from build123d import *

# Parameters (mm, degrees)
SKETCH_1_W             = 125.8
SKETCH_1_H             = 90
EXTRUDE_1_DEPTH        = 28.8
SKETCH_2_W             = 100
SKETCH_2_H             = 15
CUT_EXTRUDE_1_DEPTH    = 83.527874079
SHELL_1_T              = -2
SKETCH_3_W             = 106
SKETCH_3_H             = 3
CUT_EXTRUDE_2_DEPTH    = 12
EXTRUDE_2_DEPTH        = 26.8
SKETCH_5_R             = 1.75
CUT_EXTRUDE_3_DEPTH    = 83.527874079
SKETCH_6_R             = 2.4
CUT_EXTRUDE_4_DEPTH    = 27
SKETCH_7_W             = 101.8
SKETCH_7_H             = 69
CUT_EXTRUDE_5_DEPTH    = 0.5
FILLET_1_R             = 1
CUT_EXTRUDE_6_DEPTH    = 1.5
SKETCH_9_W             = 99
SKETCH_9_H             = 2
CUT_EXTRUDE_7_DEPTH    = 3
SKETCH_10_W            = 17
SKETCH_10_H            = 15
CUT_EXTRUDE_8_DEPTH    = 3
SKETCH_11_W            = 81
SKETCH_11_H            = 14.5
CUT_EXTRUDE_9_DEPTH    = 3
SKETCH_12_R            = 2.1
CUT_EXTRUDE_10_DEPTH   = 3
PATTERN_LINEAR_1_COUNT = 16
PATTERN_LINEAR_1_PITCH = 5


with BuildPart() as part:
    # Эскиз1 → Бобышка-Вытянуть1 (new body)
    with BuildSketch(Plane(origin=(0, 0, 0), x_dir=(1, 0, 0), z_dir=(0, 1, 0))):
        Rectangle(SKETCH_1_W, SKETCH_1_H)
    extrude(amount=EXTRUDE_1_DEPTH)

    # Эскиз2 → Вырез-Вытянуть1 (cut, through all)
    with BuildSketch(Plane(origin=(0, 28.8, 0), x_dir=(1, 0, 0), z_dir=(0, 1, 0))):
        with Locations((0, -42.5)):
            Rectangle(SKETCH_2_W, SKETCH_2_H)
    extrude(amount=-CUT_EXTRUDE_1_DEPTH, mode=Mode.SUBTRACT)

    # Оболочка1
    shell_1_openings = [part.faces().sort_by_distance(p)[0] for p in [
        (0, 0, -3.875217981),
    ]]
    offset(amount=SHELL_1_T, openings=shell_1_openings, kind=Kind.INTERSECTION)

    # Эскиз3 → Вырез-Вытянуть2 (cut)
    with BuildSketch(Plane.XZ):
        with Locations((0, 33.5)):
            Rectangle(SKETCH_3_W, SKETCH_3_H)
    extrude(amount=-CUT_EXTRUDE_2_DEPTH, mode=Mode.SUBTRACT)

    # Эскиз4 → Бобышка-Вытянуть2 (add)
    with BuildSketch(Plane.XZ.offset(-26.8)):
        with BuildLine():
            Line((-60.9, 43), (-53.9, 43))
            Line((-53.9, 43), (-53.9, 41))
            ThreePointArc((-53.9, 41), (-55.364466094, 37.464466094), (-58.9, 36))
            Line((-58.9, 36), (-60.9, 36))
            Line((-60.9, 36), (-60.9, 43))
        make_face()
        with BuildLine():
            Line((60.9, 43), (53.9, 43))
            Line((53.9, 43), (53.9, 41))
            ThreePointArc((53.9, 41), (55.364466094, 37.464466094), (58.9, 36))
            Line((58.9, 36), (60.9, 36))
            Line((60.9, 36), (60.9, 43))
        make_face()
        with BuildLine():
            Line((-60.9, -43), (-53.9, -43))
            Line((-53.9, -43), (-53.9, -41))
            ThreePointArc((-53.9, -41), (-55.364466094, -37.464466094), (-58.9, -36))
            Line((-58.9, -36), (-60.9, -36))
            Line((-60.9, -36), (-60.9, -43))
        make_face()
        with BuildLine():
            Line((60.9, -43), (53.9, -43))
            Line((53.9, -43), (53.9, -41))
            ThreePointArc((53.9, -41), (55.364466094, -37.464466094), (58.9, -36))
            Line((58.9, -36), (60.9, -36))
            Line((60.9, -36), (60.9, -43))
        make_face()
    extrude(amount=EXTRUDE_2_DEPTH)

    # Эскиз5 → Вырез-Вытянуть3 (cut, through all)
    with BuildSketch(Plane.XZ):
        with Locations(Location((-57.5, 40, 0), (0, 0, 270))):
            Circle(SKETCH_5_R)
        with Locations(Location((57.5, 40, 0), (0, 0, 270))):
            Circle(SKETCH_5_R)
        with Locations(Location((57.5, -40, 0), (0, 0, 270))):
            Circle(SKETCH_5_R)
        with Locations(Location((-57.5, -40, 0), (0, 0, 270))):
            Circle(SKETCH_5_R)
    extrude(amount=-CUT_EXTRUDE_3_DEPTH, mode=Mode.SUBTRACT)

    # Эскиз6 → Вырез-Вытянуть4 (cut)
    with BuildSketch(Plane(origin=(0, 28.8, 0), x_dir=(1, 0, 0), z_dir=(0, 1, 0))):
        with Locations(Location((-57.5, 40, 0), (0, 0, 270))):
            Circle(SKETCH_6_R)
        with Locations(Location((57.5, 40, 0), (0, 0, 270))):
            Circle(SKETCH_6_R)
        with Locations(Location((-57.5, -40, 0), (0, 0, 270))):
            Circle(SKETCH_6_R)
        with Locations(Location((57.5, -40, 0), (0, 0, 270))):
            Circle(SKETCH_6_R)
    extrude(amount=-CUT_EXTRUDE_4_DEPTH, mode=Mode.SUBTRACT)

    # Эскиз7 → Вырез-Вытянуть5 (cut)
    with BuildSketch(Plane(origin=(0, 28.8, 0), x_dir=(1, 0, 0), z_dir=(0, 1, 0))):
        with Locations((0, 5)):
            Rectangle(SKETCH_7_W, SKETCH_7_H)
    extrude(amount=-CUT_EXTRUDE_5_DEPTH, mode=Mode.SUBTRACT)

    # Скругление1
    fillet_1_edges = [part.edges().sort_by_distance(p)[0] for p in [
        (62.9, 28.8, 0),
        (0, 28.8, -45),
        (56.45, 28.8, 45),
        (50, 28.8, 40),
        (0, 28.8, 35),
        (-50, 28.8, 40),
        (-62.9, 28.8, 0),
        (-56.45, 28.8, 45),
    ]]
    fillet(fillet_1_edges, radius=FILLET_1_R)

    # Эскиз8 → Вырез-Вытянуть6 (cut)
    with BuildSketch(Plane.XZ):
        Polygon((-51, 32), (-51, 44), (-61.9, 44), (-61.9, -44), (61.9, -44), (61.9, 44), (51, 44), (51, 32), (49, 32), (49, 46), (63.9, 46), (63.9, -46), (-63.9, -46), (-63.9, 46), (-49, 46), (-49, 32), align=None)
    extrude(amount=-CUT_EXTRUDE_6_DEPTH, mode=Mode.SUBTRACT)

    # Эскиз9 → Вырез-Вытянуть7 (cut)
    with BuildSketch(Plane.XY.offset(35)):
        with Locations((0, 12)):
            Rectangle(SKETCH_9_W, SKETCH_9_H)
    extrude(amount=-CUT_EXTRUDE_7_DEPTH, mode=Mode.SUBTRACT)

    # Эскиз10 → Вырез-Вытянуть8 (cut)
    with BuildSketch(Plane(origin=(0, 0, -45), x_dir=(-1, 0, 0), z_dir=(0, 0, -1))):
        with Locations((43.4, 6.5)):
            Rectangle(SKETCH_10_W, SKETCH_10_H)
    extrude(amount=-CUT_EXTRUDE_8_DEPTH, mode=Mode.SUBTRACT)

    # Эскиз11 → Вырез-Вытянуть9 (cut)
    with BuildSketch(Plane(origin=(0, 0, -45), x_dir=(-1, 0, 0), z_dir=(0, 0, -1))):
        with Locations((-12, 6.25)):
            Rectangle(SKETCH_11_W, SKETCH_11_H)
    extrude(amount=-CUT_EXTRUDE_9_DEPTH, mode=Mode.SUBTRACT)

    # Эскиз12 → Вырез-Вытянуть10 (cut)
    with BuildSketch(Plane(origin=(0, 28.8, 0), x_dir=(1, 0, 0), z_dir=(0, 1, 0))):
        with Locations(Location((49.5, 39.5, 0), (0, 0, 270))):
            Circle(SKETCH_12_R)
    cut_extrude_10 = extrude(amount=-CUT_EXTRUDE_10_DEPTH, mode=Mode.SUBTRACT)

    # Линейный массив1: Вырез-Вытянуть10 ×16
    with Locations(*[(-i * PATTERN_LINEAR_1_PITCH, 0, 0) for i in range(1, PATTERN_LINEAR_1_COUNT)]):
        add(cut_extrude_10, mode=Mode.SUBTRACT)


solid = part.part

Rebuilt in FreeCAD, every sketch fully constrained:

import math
import FreeCAD as App
import Part
import Sketcher

V = App.Vector


def edges_at(feature, points):
    """Names of the edges that pass closest to the given points."""
    edges = feature.Shape.Edges
    near = lambda p: min(range(len(edges)), key=lambda i: edges[i].distToShape(Part.Vertex(*p))[0])
    return sorted({f"Edge{near(p) + 1}" for p in points})


def faces_at(feature, points):
    """Names of the faces that lie closest to the given points."""
    faces = feature.Shape.Faces
    near = lambda p: min(range(len(faces)), key=lambda i: faces[i].distToShape(Part.Vertex(*p))[0])
    return sorted({f"Face{near(p) + 1}" for p in points})


def add_polygon(sketch, points):
    """Adds a closed chain of lines whose ends are joined by coincident constraints."""
    first, n = sketch.GeometryCount, len(points)
    for a, b in zip(points, points[1:] + points[:1]):
        sketch.addGeometry(Part.LineSegment(App.Vector(*a, 0), App.Vector(*b, 0)), False)
    for i in range(n):
        sketch.addConstraint(Sketcher.Constraint("Coincident", first + i, 2, first + (i + 1) % n, 1))

doc = App.newDocument("Part")
body = doc.addObject("PartDesign::Body", "Body")

sketch1 = body.newObject("Sketcher::SketchObject", "Sketch")
sketch1.AttachmentSupport = (doc.getObject("XZ_Plane"), [""])
sketch1.MapMode = "FlatFace"
add_polygon(sketch1, [(-62.9, -45), (-62.9, 45), (62.9, 45), (62.9, -45)])
sketch1.addConstraint(Sketcher.Constraint("Vertical", 0))
sketch1.addConstraint(Sketcher.Constraint("Horizontal", 1))
sketch1.addConstraint(Sketcher.Constraint("Vertical", 2))
sketch1.addConstraint(Sketcher.Constraint("Horizontal", 3))
sketch1.addConstraint(Sketcher.Constraint("Symmetric", 0, 2, 2, 2, -1, 1))
sketch1.addConstraint(Sketcher.Constraint("DistanceY", 0, 1, 0, 2, 90.0))
sketch1.addConstraint(Sketcher.Constraint("DistanceX", 1, 1, 1, 2, 125.8))
pad1 = body.newObject("PartDesign::Pad", "Pad")
pad1.Profile = sketch1
pad1.Length = 28.8
pad1.Reversed = True

sketch2 = body.newObject("Sketcher::SketchObject", "Sketch001")
sketch2.AttachmentSupport = (doc.getObject("XZ_Plane"), [""])
sketch2.MapMode = "FlatFace"
sketch2.AttachmentOffset = App.Placement(V(0, 0, -28.8), App.Rotation())
add_polygon(sketch2, [(-50, 35), (-50, 50), (50, 50), (50, 35)])
sketch2.addConstraint(Sketcher.Constraint("Vertical", 0))
sketch2.addConstraint(Sketcher.Constraint("Horizontal", 1))
sketch2.addConstraint(Sketcher.Constraint("Vertical", 2))
sketch2.addConstraint(Sketcher.Constraint("Horizontal", 3))
sketch2.addConstraint(Sketcher.Constraint("DistanceX", 1, 1, 1, 2, 100.0))
sketch2.addConstraint(Sketcher.Constraint("DistanceY", 0, 1, 0, 2, 15.0))
sketch2.addConstraint(Sketcher.Constraint("DistanceX", 0, 2, -1, 1, 50.0))
sketch2.addConstraint(Sketcher.Constraint("DistanceY", -1, 1, 0, 2, 50.0))
pocket1 = body.newObject("PartDesign::Pocket", "Pocket")
pocket1.Profile = sketch2
pocket1.Type = "ThroughAll"
pocket1.Reversed = True
doc.recompute()

thickness = body.newObject("PartDesign::Thickness", "Thickness")
thickness.Base = (pocket1, faces_at(pocket1, [(0, 0, 0)]))
thickness.Value = 2
thickness.Reversed = True
thickness.Join = "Intersection"

sketch3 = body.newObject("Sketcher::SketchObject", "Sketch002")
sketch3.AttachmentSupport = (doc.getObject("XZ_Plane"), [""])
sketch3.MapMode = "FlatFace"
add_polygon(sketch3, [(-53, 35), (-53, 32), (53, 32), (53, 35)])
sketch3.addConstraint(Sketcher.Constraint("Vertical", 0))
sketch3.addConstraint(Sketcher.Constraint("Horizontal", 1))
sketch3.addConstraint(Sketcher.Constraint("Vertical", 2))
sketch3.addConstraint(Sketcher.Constraint("Horizontal", 3))
sketch3.addConstraint(Sketcher.Constraint("DistanceX", 1, 1, 1, 2, 106.0))
sketch3.addConstraint(Sketcher.Constraint("DistanceY", 0, 2, 0, 1, 3.0))
sketch3.addConstraint(Sketcher.Constraint("DistanceX", 0, 2, -1, 1, 53.0))
sketch3.addConstraint(Sketcher.Constraint("DistanceY", -1, 1, 0, 2, 32.0))
pocket2 = body.newObject("PartDesign::Pocket", "Pocket001")
pocket2.Profile = sketch3
pocket2.Length = 12

sketch4 = body.newObject("Sketcher::SketchObject", "Sketch003")
sketch4.AttachmentSupport = (doc.getObject("XZ_Plane"), [""])
sketch4.MapMode = "FlatFace"
sketch4.AttachmentOffset = App.Placement(V(0, 0, -26.8), App.Rotation())
sketch4.addGeometry(Part.LineSegment(V(-53.9, 43, 0), V(-60.9, 43, 0)), False)
sketch4.addGeometry(Part.LineSegment(V(-60.9, 43, 0), V(-60.9, 36, 0)), False)
sketch4.addGeometry(Part.LineSegment(V(-60.9, 36, 0), V(-58.9, 36, 0)), False)
sketch4.addGeometry(Part.ArcOfCircle(Part.Circle(V(-58.9, 41, 0), V(0, 0, 1), 5), math.radians(-90), math.radians(0)), False)
sketch4.addGeometry(Part.LineSegment(V(-53.9, 41, 0), V(-53.9, 43, 0)), False)
sketch4.addGeometry(Part.LineSegment(V(60.9, 43, 0), V(53.9, 43, 0)), False)
sketch4.addGeometry(Part.LineSegment(V(53.9, 43, 0), V(53.9, 41, 0)), False)
sketch4.addGeometry(Part.ArcOfCircle(Part.Circle(V(58.9, 41, 0), V(0, 0, 1), 5), math.radians(180), math.radians(270)), False)
sketch4.addGeometry(Part.LineSegment(V(58.9, 36, 0), V(60.9, 36, 0)), False)
sketch4.addGeometry(Part.LineSegment(V(60.9, 36, 0), V(60.9, 43, 0)), False)
sketch4.addGeometry(Part.LineSegment(V(-60.9, -43, 0), V(-53.9, -43, 0)), False)
sketch4.addGeometry(Part.LineSegment(V(-53.9, -43, 0), V(-53.9, -41, 0)), False)
sketch4.addGeometry(Part.ArcOfCircle(Part.Circle(V(-58.9, -41, 0), V(0, 0, 1), 5), math.radians(0), math.radians(90)), False)
sketch4.addGeometry(Part.LineSegment(V(-58.9, -36, 0), V(-60.9, -36, 0)), False)
sketch4.addGeometry(Part.LineSegment(V(-60.9, -36, 0), V(-60.9, -43, 0)), False)
sketch4.addGeometry(Part.LineSegment(V(53.9, -43, 0), V(60.9, -43, 0)), False)
sketch4.addGeometry(Part.LineSegment(V(60.9, -43, 0), V(60.9, -36, 0)), False)
sketch4.addGeometry(Part.LineSegment(V(60.9, -36, 0), V(58.9, -36, 0)), False)
sketch4.addGeometry(Part.ArcOfCircle(Part.Circle(V(58.9, -41, 0), V(0, 0, 1), 5), math.radians(90), math.radians(180)), False)
sketch4.addGeometry(Part.LineSegment(V(53.9, -41, 0), V(53.9, -43, 0)), False)
sketch4.addConstraint(Sketcher.Constraint("Coincident", 0, 2, 1, 1))
sketch4.addConstraint(Sketcher.Constraint("Coincident", 1, 2, 2, 1))
sketch4.addConstraint(Sketcher.Constraint("Tangent", 2, 2, 3, 1))
sketch4.addConstraint(Sketcher.Constraint("Tangent", 3, 2, 4, 1))
sketch4.addConstraint(Sketcher.Constraint("Coincident", 4, 2, 0, 1))
sketch4.addConstraint(Sketcher.Constraint("Coincident", 5, 2, 6, 1))
sketch4.addConstraint(Sketcher.Constraint("Tangent", 6, 2, 7, 1))
sketch4.addConstraint(Sketcher.Constraint("Tangent", 7, 2, 8, 1))
sketch4.addConstraint(Sketcher.Constraint("Coincident", 8, 2, 9, 1))
sketch4.addConstraint(Sketcher.Constraint("Coincident", 9, 2, 5, 1))
sketch4.addConstraint(Sketcher.Constraint("Coincident", 10, 2, 11, 1))
sketch4.addConstraint(Sketcher.Constraint("Tangent", 11, 2, 12, 1))
sketch4.addConstraint(Sketcher.Constraint("Tangent", 12, 2, 13, 1))
sketch4.addConstraint(Sketcher.Constraint("Coincident", 13, 2, 14, 1))
sketch4.addConstraint(Sketcher.Constraint("Coincident", 14, 2, 10, 1))
sketch4.addConstraint(Sketcher.Constraint("Coincident", 15, 2, 16, 1))
sketch4.addConstraint(Sketcher.Constraint("Coincident", 16, 2, 17, 1))
sketch4.addConstraint(Sketcher.Constraint("Tangent", 17, 2, 18, 1))
sketch4.addConstraint(Sketcher.Constraint("Tangent", 18, 2, 19, 1))
sketch4.addConstraint(Sketcher.Constraint("Coincident", 19, 2, 15, 1))
sketch4.addConstraint(Sketcher.Constraint("Horizontal", 0))
sketch4.addConstraint(Sketcher.Constraint("Vertical", 1))
sketch4.addConstraint(Sketcher.Constraint("Horizontal", 2))
sketch4.addConstraint(Sketcher.Constraint("Vertical", 4))
sketch4.addConstraint(Sketcher.Constraint("Horizontal", 5))
sketch4.addConstraint(Sketcher.Constraint("Vertical", 6))
sketch4.addConstraint(Sketcher.Constraint("Horizontal", 8))
sketch4.addConstraint(Sketcher.Constraint("Vertical", 9))
sketch4.addConstraint(Sketcher.Constraint("Horizontal", 10))
sketch4.addConstraint(Sketcher.Constraint("Vertical", 11))
sketch4.addConstraint(Sketcher.Constraint("Horizontal", 13))
sketch4.addConstraint(Sketcher.Constraint("Vertical", 14))
sketch4.addConstraint(Sketcher.Constraint("Horizontal", 15))
sketch4.addConstraint(Sketcher.Constraint("Vertical", 16))
sketch4.addConstraint(Sketcher.Constraint("Horizontal", 17))
sketch4.addConstraint(Sketcher.Constraint("Vertical", 19))
sketch4.addConstraint(Sketcher.Constraint("Equal", 3, 7))
sketch4.addConstraint(Sketcher.Constraint("Equal", 7, 12))
sketch4.addConstraint(Sketcher.Constraint("Equal", 12, 18))
sketch4.addConstraint(Sketcher.Constraint("Symmetric", 7, 3, 12, 3, -1, 1))
sketch4.addConstraint(Sketcher.Constraint("Symmetric", 3, 3, 18, 3, -1, 1))
sketch4.addConstraint(Sketcher.Constraint("Symmetric", 9, 2, 14, 2, -1, 1))
sketch4.addConstraint(Sketcher.Constraint("Symmetric", 0, 2, 15, 2, -1, 1))
sketch4.addConstraint(Sketcher.Constraint("Symmetric", 3, 3, 7, 3, -2))
sketch4.addConstraint(Sketcher.Constraint("Symmetric", 0, 2, 9, 2, -2))
sketch4.addConstraint(Sketcher.Constraint("Equal", 15, 1))
sketch4.addConstraint(Sketcher.Constraint("Radius", 3, 5.0))
sketch4.addConstraint(Sketcher.Constraint("DistanceX", 0, 2, 0, 1, 7.0))
sketch4.addConstraint(Sketcher.Constraint("DistanceY", -1, 1, 3, 3, 41.0))
sketch4.addConstraint(Sketcher.Constraint("DistanceX", 3, 3, -1, 1, 58.9))
pad2 = body.newObject("PartDesign::Pad", "Pad001")
pad2.Profile = sketch4
pad2.Length = 26.8

sketch5 = body.newObject("Sketcher::SketchObject", "Sketch004")
sketch5.AttachmentSupport = (doc.getObject("XZ_Plane"), [""])
sketch5.MapMode = "FlatFace"
sketch5.addGeometry(Part.Circle(V(-57.5, 40, 0), V(0, 0, 1), 1.75), False)
sketch5.addGeometry(Part.Circle(V(57.5, 40, 0), V(0, 0, 1), 1.75), False)
sketch5.addGeometry(Part.Circle(V(57.5, -40, 0), V(0, 0, 1), 1.75), False)
sketch5.addGeometry(Part.Circle(V(-57.5, -40, 0), V(0, 0, 1), 1.75), False)
sketch5.addConstraint(Sketcher.Constraint("Equal", 0, 1))
sketch5.addConstraint(Sketcher.Constraint("Equal", 1, 2))
sketch5.addConstraint(Sketcher.Constraint("Equal", 2, 3))
sketch5.addConstraint(Sketcher.Constraint("Symmetric", 0, 3, 2, 3, -1, 1))
sketch5.addConstraint(Sketcher.Constraint("Symmetric", 1, 3, 3, 3, -1, 1))
sketch5.addConstraint(Sketcher.Constraint("Symmetric", 0, 3, 1, 3, -2))
sketch5.addConstraint(Sketcher.Constraint("Diameter", 0, 3.5))
sketch5.addConstraint(Sketcher.Constraint("DistanceY", -1, 1, 0, 3, 40.0))
sketch5.addConstraint(Sketcher.Constraint("DistanceX", 0, 3, 1, 3, 115.0))
pocket3 = body.newObject("PartDesign::Pocket", "Pocket002")
pocket3.Profile = sketch5
pocket3.Type = "ThroughAll"

sketch6 = body.newObject("Sketcher::SketchObject", "Sketch005")
sketch6.AttachmentSupport = (doc.getObject("XZ_Plane"), [""])
sketch6.MapMode = "FlatFace"
sketch6.AttachmentOffset = App.Placement(V(0, 0, -28.8), App.Rotation())
sketch6.addGeometry(Part.Circle(V(-57.5, -40, 0), V(0, 0, 1), 2.4), False)
sketch6.addGeometry(Part.Circle(V(57.5, -40, 0), V(0, 0, 1), 2.4), False)
sketch6.addGeometry(Part.Circle(V(-57.5, 40, 0), V(0, 0, 1), 2.4), False)
sketch6.addGeometry(Part.Circle(V(57.5, 40, 0), V(0, 0, 1), 2.4), False)
sketch6.addConstraint(Sketcher.Constraint("Equal", 0, 1))
sketch6.addConstraint(Sketcher.Constraint("Equal", 1, 2))
sketch6.addConstraint(Sketcher.Constraint("Equal", 2, 3))
sketch6.addConstraint(Sketcher.Constraint("Symmetric", 1, 3, 2, 3, -1, 1))
sketch6.addConstraint(Sketcher.Constraint("Symmetric", 0, 3, 3, 3, -1, 1))
sketch6.addConstraint(Sketcher.Constraint("Symmetric", 0, 3, 1, 3, -2))
sketch6.addConstraint(Sketcher.Constraint("Diameter", 0, 4.8))
sketch6.addConstraint(Sketcher.Constraint("DistanceY", 0, 3, -1, 1, 40.0))
sketch6.addConstraint(Sketcher.Constraint("DistanceX", 0, 3, 1, 3, 115.0))
pocket4 = body.newObject("PartDesign::Pocket", "Pocket003")
pocket4.Profile = sketch6
pocket4.Length = 27
pocket4.Reversed = True

sketch7 = body.newObject("Sketcher::SketchObject", "Sketch006")
sketch7.AttachmentSupport = (doc.getObject("XZ_Plane"), [""])
sketch7.MapMode = "FlatFace"
sketch7.AttachmentOffset = App.Placement(V(0, 0, -28.8), App.Rotation())
add_polygon(sketch7, [(-50.9, -39.5), (-50.9, 29.5), (50.9, 29.5), (50.9, -39.5)])
sketch7.addConstraint(Sketcher.Constraint("Vertical", 0))
sketch7.addConstraint(Sketcher.Constraint("Horizontal", 1))
sketch7.addConstraint(Sketcher.Constraint("Vertical", 2))
sketch7.addConstraint(Sketcher.Constraint("Horizontal", 3))
sketch7.addConstraint(Sketcher.Constraint("DistanceY", 0, 1, 0, 2, 69.0))
sketch7.addConstraint(Sketcher.Constraint("DistanceX", 1, 1, 1, 2, 101.8))
sketch7.addConstraint(Sketcher.Constraint("DistanceX", 0, 2, -1, 1, 50.9))
sketch7.addConstraint(Sketcher.Constraint("DistanceY", -1, 1, 0, 2, 29.5))
pocket5 = body.newObject("PartDesign::Pocket", "Pocket004")
pocket5.Profile = sketch7
pocket5.Length = 0.5
pocket5.Reversed = True
doc.recompute()

fillet = body.newObject("PartDesign::Fillet", "Fillet")
fillet.Base = (pocket5, edges_at(pocket5, [
    (62.9, 28.8, 0),
    (0, 28.8, -45),
    (56.45, 28.8, 45),
    (50, 28.8, 40),
    (0, 28.8, 35),
    (-50, 28.8, 40),
    (-62.9, 28.8, 0),
    (-56.45, 28.8, 45),
]))
fillet.Radius = 1

sketch8 = body.newObject("Sketcher::SketchObject", "Sketch007")
sketch8.AttachmentSupport = (doc.getObject("XZ_Plane"), [""])
sketch8.MapMode = "FlatFace"
add_polygon(sketch8, [(-51, 44), (-51, 32), (-49, 32), (-49, 46), (-63.9, 46), (-63.9, -46), (63.9, -46), (63.9, 46), (49, 46), (49, 32), (51, 32), (51, 44), (61.9, 44), (61.9, -44), (-61.9, -44), (-61.9, 44)])
sketch8.addConstraint(Sketcher.Constraint("Vertical", 0))
sketch8.addConstraint(Sketcher.Constraint("Horizontal", 1))
sketch8.addConstraint(Sketcher.Constraint("Vertical", 2))
sketch8.addConstraint(Sketcher.Constraint("Horizontal", 3))
sketch8.addConstraint(Sketcher.Constraint("Vertical", 4))
sketch8.addConstraint(Sketcher.Constraint("Horizontal", 5))
sketch8.addConstraint(Sketcher.Constraint("Vertical", 6))
sketch8.addConstraint(Sketcher.Constraint("Horizontal", 7))
sketch8.addConstraint(Sketcher.Constraint("Vertical", 8))
sketch8.addConstraint(Sketcher.Constraint("Horizontal", 9))
sketch8.addConstraint(Sketcher.Constraint("Vertical", 10))
sketch8.addConstraint(Sketcher.Constraint("Horizontal", 11))
sketch8.addConstraint(Sketcher.Constraint("Vertical", 12))
sketch8.addConstraint(Sketcher.Constraint("Horizontal", 13))
sketch8.addConstraint(Sketcher.Constraint("Vertical", 14))
sketch8.addConstraint(Sketcher.Constraint("Horizontal", 15))
sketch8.addConstraint(Sketcher.Constraint("Symmetric", 3, 2, 5, 2, -1, 1))
sketch8.addConstraint(Sketcher.Constraint("Symmetric", 11, 2, 13, 2, -1, 1))
sketch8.addConstraint(Sketcher.Constraint("Symmetric", 2, 2, 7, 2, -2))
sketch8.addConstraint(Sketcher.Constraint("Symmetric", 0, 2, 9, 2, -2))
sketch8.addConstraint(Sketcher.Constraint("Horizontal", 11, 2, 14, 2))
sketch8.addConstraint(Sketcher.Constraint("DistanceX", 1, 1, 1, 2, 2.0))
sketch8.addConstraint(Sketcher.Constraint("DistanceY", 0, 2, 0, 1, 12.0))
sketch8.addConstraint(Sketcher.Constraint("DistanceY", 2, 1, 2, 2, 14.0))
sketch8.addConstraint(Sketcher.Constraint("DistanceY", 4, 2, 4, 1, 92.0))
sketch8.addConstraint(Sketcher.Constraint("DistanceX", 3, 2, 3, 1, 14.9))
sketch8.addConstraint(Sketcher.Constraint("DistanceX", 5, 1, 5, 2, 127.8))
sketch8.addConstraint(Sketcher.Constraint("DistanceX", 11, 1, 11, 2, 10.9))
pocket6 = body.newObject("PartDesign::Pocket", "Pocket005")
pocket6.Profile = sketch8
pocket6.Length = 1.5

sketch9 = body.newObject("Sketcher::SketchObject", "Sketch008")
sketch9.AttachmentSupport = (doc.getObject("XY_Plane"), [""])
sketch9.MapMode = "FlatFace"
sketch9.AttachmentOffset = App.Placement(V(0, 0, 35), App.Rotation())
add_polygon(sketch9, [(-49.5, 13), (-49.5, 11), (49.5, 11), (49.5, 13)])
sketch9.addConstraint(Sketcher.Constraint("Vertical", 0))
sketch9.addConstraint(Sketcher.Constraint("Horizontal", 1))
sketch9.addConstraint(Sketcher.Constraint("Vertical", 2))
sketch9.addConstraint(Sketcher.Constraint("Horizontal", 3))
sketch9.addConstraint(Sketcher.Constraint("DistanceX", 1, 1, 1, 2, 99.0))
sketch9.addConstraint(Sketcher.Constraint("DistanceY", 0, 2, 0, 1, 2.0))
sketch9.addConstraint(Sketcher.Constraint("DistanceY", -1, 1, 0, 2, 11.0))
sketch9.addConstraint(Sketcher.Constraint("DistanceX", 0, 2, -1, 1, 49.5))
pocket7 = body.newObject("PartDesign::Pocket", "Pocket006")
pocket7.Profile = sketch9
pocket7.Length = 3

sketch10 = body.newObject("Sketcher::SketchObject", "Sketch009")
sketch10.AttachmentSupport = (doc.getObject("XY_Plane"), [""])
sketch10.MapMode = "FlatFace"
sketch10.AttachmentOffset = App.Placement(V(0, 0, -45), App.Rotation())
add_polygon(sketch10, [(-34.9, 14), (-34.9, -1), (-51.9, -1), (-51.9, 14)])
sketch10.addConstraint(Sketcher.Constraint("Vertical", 0))
sketch10.addConstraint(Sketcher.Constraint("Horizontal", 1))
sketch10.addConstraint(Sketcher.Constraint("Vertical", 2))
sketch10.addConstraint(Sketcher.Constraint("Horizontal", 3))
sketch10.addConstraint(Sketcher.Constraint("DistanceX", 1, 2, 1, 1, 17.0))
sketch10.addConstraint(Sketcher.Constraint("DistanceY", 0, 2, 0, 1, 15.0))
sketch10.addConstraint(Sketcher.Constraint("DistanceY", 0, 2, -1, 1, 1.0))
sketch10.addConstraint(Sketcher.Constraint("DistanceX", 0, 2, -1, 1, 34.9))
pocket8 = body.newObject("PartDesign::Pocket", "Pocket007")
pocket8.Profile = sketch10
pocket8.Length = 3
pocket8.Reversed = True

sketch11 = body.newObject("Sketcher::SketchObject", "Sketch010")
sketch11.AttachmentSupport = (doc.getObject("XY_Plane"), [""])
sketch11.MapMode = "FlatFace"
sketch11.AttachmentOffset = App.Placement(V(0, 0, -45), App.Rotation())
add_polygon(sketch11, [(52.5, 13.5), (52.5, -1), (-28.5, -1), (-28.5, 13.5)])
sketch11.addConstraint(Sketcher.Constraint("Vertical", 0))
sketch11.addConstraint(Sketcher.Constraint("Horizontal", 1))
sketch11.addConstraint(Sketcher.Constraint("Vertical", 2))
sketch11.addConstraint(Sketcher.Constraint("Horizontal", 3))
sketch11.addConstraint(Sketcher.Constraint("DistanceX", 1, 2, 1, 1, 81.0))
sketch11.addConstraint(Sketcher.Constraint("DistanceY", 0, 2, 0, 1, 14.5))
sketch11.addConstraint(Sketcher.Constraint("DistanceY", 0, 2, -1, 1, 1.0))
sketch11.addConstraint(Sketcher.Constraint("DistanceX", -1, 1, 0, 2, 52.5))
pocket9 = body.newObject("PartDesign::Pocket", "Pocket008")
pocket9.Profile = sketch11
pocket9.Length = 3
pocket9.Reversed = True

sketch12 = body.newObject("Sketcher::SketchObject", "Sketch011")
sketch12.AttachmentSupport = (doc.getObject("XZ_Plane"), [""])
sketch12.MapMode = "FlatFace"
sketch12.AttachmentOffset = App.Placement(V(0, 0, -28.8), App.Rotation())
sketch12.addGeometry(Part.Circle(V(49.5, -39.5, 0), V(0, 0, 1), 2.1), False)
sketch12.addConstraint(Sketcher.Constraint("Diameter", 0, 4.2))
sketch12.addConstraint(Sketcher.Constraint("DistanceX", -1, 1, 0, 3, 49.5))
sketch12.addConstraint(Sketcher.Constraint("DistanceY", 0, 3, -1, 1, 39.5))
pocket10 = body.newObject("PartDesign::Pocket", "Pocket009")
pocket10.Profile = sketch12
pocket10.Length = 3
pocket10.Reversed = True
doc.recompute()

linearpattern = body.newObject("PartDesign::LinearPattern", "LinearPattern")
linearpattern.Originals = [pocket10]
linearpattern.Direction = (doc.getObject("X_Axis"), [""])
linearpattern.Mode = "offset"
linearpattern.Offset = 5
linearpattern.Occurrences = 16
linearpattern.Reversed = True
body.Tip = linearpattern

doc.recompute()
